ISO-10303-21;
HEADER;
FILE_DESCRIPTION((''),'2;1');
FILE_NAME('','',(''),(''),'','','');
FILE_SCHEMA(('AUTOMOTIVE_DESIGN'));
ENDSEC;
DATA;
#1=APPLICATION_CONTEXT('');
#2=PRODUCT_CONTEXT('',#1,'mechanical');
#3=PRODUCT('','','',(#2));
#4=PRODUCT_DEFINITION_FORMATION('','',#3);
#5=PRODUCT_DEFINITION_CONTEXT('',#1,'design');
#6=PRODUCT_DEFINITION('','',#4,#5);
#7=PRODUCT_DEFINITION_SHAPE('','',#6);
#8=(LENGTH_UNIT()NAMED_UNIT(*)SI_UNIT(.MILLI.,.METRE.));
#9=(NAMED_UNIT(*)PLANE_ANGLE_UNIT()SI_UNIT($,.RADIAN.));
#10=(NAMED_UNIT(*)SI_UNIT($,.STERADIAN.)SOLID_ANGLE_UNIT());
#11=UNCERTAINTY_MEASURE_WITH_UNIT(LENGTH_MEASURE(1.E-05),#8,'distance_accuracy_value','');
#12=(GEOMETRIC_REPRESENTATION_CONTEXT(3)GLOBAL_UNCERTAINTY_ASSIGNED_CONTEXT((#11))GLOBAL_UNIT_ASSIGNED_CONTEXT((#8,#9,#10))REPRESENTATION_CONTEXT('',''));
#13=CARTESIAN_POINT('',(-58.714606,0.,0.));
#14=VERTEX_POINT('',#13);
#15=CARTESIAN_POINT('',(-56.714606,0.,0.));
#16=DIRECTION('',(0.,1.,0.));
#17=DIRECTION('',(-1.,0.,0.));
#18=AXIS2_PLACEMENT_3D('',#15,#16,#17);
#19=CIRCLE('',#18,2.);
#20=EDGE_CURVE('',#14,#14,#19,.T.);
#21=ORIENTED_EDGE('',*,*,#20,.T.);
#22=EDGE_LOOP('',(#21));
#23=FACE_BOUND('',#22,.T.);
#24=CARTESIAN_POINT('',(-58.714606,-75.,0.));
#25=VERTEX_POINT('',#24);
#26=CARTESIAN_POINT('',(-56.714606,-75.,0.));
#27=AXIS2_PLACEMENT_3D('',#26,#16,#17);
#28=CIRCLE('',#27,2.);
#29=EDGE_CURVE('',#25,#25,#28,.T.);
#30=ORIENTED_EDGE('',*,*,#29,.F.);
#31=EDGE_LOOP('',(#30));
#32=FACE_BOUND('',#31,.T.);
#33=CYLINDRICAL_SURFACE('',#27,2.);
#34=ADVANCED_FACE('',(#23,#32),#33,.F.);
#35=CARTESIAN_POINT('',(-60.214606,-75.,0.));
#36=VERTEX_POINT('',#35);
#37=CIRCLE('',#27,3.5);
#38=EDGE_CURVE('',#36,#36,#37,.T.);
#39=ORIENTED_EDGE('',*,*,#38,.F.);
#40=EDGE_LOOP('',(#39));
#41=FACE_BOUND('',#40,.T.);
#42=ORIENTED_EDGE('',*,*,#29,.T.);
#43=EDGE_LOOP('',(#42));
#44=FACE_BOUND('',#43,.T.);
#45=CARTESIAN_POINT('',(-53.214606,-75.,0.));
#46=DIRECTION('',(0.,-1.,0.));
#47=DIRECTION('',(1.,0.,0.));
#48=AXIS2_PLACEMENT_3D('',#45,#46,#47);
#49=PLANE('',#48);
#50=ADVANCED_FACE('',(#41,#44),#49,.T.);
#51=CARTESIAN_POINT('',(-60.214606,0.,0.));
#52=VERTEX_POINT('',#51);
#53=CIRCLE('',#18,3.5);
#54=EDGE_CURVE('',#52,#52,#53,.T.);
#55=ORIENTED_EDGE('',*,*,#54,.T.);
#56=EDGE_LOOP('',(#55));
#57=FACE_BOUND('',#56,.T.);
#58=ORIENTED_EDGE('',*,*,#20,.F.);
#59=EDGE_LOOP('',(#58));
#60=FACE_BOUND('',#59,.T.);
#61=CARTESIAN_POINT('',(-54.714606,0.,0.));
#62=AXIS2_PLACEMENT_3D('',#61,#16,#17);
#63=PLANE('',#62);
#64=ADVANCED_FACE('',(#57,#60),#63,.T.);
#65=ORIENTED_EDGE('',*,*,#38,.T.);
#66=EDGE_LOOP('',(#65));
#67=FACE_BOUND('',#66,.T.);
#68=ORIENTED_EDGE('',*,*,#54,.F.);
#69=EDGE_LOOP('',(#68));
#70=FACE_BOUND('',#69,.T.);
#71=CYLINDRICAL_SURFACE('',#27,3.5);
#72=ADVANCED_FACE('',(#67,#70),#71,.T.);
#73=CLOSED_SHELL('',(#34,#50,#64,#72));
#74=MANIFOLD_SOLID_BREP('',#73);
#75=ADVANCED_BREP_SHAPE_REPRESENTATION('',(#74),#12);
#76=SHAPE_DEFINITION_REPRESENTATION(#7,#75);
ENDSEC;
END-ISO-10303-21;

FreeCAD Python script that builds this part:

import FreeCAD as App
import Part
import Sketcher

V = App.Vector


def add_polygon(sketch, points):
    """Adds a closed chain of lines whose ends are joined by coincident constraints."""
    first, n = sketch.GeometryCount, len(points)
    for a, b in zip(points, points[1:] + points[:1]):
        sketch.addGeometry(Part.LineSegment(App.Vector(*a, 0), App.Vector(*b, 0)), False)
    for i in range(n):
        sketch.addConstraint(Sketcher.Constraint("Coincident", first + i, 2, first + (i + 1) % n, 1))

doc = App.newDocument("Part")
body = doc.addObject("PartDesign::Body", "Body")

sketch1 = body.newObject("Sketcher::SketchObject", "Sketch")
sketch1.AttachmentSupport = (doc.getObject("XY_Plane"), [""])
sketch1.MapMode = "FlatFace"
add_polygon(sketch1, [(-53.2, 0), (-53.2, -75), (-54.7, -75), (-54.7, 0)])
sketch1.addGeometry(Part.LineSegment(V(-56.7, -75, 0), V(-56.7, 0, 0)), True)
sketch1.addConstraint(Sketcher.Constraint("Vertical", 0))
sketch1.addConstraint(Sketcher.Constraint("Horizontal", 1))
sketch1.addConstraint(Sketcher.Constraint("Vertical", 2))
sketch1.addConstraint(Sketcher.Constraint("Horizontal", 3))
sketch1.addConstraint(Sketcher.Constraint("Vertical", 4))
sketch1.addConstraint(Sketcher.Constraint("PointOnObject", 2, 2, -1))
sketch1.addConstraint(Sketcher.Constraint("PointOnObject", 4, 2, -1))
sketch1.addConstraint(Sketcher.Constraint("Horizontal", 1, 2, 4, 1))
sketch1.addConstraint(Sketcher.Constraint("DistanceY", 0, 2, 0, 1, 75.0))
sketch1.addConstraint(Sketcher.Constraint("DistanceX", 1, 2, 1, 1, 1.5))
sketch1.addConstraint(Sketcher.Constraint("DistanceX", 4, 1, 1, 2, 2.0))
sketch1.addConstraint(Sketcher.Constraint("DistanceX", 0, 2, -1, 1, 53.214606))
revolution = body.newObject("PartDesign::Revolution", "Revolution")
revolution.Profile = sketch1
revolution.ReferenceAxis = (sketch1, ["Axis0"])
revolution.Angle = 360

doc.recompute()
